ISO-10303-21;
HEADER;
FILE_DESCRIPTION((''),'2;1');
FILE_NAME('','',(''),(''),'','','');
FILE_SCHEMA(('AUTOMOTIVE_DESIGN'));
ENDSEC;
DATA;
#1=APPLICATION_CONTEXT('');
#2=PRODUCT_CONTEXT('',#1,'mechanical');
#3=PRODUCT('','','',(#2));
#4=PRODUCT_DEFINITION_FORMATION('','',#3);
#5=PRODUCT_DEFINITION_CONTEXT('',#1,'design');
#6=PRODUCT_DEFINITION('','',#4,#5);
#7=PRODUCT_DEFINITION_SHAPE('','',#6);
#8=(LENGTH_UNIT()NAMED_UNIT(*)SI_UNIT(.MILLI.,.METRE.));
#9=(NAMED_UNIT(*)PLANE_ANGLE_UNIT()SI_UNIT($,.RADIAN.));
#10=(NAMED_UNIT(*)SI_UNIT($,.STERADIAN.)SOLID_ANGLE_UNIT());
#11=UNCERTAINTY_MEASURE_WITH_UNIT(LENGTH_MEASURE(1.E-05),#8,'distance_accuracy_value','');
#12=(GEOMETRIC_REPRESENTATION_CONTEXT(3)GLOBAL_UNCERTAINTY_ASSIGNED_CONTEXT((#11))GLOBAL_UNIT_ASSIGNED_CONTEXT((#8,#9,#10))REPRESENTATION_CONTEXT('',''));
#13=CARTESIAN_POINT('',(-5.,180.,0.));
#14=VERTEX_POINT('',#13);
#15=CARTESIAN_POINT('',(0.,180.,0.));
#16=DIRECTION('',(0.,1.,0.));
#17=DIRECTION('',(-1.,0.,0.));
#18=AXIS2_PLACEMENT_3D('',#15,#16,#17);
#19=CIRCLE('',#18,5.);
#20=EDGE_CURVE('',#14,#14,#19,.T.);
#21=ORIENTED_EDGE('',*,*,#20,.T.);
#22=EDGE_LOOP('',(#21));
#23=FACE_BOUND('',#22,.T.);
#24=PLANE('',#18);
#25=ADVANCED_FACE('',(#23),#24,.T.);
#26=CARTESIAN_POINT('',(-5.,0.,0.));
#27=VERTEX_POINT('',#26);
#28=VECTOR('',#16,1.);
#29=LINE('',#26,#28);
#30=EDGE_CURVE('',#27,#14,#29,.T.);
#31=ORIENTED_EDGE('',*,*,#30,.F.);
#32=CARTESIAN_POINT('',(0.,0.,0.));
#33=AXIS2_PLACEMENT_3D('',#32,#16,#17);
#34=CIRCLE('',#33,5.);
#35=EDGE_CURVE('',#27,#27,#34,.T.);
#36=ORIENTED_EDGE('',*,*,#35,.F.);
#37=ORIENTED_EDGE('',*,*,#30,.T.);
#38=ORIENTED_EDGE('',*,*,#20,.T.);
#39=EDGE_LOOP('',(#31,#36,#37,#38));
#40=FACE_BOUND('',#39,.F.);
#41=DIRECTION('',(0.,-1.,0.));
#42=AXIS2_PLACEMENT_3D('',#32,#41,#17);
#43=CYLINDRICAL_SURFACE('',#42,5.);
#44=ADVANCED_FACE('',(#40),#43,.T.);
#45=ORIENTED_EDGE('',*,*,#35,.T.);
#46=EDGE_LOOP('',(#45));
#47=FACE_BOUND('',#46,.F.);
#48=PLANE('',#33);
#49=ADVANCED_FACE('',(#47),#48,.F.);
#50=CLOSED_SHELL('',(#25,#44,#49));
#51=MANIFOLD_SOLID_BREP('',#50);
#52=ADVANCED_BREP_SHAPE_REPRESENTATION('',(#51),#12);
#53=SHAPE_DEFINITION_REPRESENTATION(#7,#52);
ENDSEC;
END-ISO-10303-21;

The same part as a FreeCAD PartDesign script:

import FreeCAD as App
import Part
import Sketcher
Q = App.Units.Quantity

doc = App.newDocument("Part")
body = doc.addObject("PartDesign::Body", "Body")

# Sketch on XZ plane
sketch1 = body.newObject("Sketcher::SketchObject", "Sketch")
sketch1.AttachmentSupport = (doc.getObject("XZ_Plane"), [""])
sketch1.MapMode = "FlatFace"
sketch1.addGeometry(Part.Circle(App.Vector(0, 0, 0), App.Vector(0, 0, 1), 5), False)
sketch1.addConstraint([
    Sketcher.Constraint("Coincident", 0, 3, -1, 1),
    Sketcher.Constraint("Diameter", 0, Q("10 mm")),
])
pad1 = body.newObject("PartDesign::Pad", "Pad")
pad1.Profile = sketch1
pad1.Length = 180
pad1.Reversed = True

doc.recompute()
